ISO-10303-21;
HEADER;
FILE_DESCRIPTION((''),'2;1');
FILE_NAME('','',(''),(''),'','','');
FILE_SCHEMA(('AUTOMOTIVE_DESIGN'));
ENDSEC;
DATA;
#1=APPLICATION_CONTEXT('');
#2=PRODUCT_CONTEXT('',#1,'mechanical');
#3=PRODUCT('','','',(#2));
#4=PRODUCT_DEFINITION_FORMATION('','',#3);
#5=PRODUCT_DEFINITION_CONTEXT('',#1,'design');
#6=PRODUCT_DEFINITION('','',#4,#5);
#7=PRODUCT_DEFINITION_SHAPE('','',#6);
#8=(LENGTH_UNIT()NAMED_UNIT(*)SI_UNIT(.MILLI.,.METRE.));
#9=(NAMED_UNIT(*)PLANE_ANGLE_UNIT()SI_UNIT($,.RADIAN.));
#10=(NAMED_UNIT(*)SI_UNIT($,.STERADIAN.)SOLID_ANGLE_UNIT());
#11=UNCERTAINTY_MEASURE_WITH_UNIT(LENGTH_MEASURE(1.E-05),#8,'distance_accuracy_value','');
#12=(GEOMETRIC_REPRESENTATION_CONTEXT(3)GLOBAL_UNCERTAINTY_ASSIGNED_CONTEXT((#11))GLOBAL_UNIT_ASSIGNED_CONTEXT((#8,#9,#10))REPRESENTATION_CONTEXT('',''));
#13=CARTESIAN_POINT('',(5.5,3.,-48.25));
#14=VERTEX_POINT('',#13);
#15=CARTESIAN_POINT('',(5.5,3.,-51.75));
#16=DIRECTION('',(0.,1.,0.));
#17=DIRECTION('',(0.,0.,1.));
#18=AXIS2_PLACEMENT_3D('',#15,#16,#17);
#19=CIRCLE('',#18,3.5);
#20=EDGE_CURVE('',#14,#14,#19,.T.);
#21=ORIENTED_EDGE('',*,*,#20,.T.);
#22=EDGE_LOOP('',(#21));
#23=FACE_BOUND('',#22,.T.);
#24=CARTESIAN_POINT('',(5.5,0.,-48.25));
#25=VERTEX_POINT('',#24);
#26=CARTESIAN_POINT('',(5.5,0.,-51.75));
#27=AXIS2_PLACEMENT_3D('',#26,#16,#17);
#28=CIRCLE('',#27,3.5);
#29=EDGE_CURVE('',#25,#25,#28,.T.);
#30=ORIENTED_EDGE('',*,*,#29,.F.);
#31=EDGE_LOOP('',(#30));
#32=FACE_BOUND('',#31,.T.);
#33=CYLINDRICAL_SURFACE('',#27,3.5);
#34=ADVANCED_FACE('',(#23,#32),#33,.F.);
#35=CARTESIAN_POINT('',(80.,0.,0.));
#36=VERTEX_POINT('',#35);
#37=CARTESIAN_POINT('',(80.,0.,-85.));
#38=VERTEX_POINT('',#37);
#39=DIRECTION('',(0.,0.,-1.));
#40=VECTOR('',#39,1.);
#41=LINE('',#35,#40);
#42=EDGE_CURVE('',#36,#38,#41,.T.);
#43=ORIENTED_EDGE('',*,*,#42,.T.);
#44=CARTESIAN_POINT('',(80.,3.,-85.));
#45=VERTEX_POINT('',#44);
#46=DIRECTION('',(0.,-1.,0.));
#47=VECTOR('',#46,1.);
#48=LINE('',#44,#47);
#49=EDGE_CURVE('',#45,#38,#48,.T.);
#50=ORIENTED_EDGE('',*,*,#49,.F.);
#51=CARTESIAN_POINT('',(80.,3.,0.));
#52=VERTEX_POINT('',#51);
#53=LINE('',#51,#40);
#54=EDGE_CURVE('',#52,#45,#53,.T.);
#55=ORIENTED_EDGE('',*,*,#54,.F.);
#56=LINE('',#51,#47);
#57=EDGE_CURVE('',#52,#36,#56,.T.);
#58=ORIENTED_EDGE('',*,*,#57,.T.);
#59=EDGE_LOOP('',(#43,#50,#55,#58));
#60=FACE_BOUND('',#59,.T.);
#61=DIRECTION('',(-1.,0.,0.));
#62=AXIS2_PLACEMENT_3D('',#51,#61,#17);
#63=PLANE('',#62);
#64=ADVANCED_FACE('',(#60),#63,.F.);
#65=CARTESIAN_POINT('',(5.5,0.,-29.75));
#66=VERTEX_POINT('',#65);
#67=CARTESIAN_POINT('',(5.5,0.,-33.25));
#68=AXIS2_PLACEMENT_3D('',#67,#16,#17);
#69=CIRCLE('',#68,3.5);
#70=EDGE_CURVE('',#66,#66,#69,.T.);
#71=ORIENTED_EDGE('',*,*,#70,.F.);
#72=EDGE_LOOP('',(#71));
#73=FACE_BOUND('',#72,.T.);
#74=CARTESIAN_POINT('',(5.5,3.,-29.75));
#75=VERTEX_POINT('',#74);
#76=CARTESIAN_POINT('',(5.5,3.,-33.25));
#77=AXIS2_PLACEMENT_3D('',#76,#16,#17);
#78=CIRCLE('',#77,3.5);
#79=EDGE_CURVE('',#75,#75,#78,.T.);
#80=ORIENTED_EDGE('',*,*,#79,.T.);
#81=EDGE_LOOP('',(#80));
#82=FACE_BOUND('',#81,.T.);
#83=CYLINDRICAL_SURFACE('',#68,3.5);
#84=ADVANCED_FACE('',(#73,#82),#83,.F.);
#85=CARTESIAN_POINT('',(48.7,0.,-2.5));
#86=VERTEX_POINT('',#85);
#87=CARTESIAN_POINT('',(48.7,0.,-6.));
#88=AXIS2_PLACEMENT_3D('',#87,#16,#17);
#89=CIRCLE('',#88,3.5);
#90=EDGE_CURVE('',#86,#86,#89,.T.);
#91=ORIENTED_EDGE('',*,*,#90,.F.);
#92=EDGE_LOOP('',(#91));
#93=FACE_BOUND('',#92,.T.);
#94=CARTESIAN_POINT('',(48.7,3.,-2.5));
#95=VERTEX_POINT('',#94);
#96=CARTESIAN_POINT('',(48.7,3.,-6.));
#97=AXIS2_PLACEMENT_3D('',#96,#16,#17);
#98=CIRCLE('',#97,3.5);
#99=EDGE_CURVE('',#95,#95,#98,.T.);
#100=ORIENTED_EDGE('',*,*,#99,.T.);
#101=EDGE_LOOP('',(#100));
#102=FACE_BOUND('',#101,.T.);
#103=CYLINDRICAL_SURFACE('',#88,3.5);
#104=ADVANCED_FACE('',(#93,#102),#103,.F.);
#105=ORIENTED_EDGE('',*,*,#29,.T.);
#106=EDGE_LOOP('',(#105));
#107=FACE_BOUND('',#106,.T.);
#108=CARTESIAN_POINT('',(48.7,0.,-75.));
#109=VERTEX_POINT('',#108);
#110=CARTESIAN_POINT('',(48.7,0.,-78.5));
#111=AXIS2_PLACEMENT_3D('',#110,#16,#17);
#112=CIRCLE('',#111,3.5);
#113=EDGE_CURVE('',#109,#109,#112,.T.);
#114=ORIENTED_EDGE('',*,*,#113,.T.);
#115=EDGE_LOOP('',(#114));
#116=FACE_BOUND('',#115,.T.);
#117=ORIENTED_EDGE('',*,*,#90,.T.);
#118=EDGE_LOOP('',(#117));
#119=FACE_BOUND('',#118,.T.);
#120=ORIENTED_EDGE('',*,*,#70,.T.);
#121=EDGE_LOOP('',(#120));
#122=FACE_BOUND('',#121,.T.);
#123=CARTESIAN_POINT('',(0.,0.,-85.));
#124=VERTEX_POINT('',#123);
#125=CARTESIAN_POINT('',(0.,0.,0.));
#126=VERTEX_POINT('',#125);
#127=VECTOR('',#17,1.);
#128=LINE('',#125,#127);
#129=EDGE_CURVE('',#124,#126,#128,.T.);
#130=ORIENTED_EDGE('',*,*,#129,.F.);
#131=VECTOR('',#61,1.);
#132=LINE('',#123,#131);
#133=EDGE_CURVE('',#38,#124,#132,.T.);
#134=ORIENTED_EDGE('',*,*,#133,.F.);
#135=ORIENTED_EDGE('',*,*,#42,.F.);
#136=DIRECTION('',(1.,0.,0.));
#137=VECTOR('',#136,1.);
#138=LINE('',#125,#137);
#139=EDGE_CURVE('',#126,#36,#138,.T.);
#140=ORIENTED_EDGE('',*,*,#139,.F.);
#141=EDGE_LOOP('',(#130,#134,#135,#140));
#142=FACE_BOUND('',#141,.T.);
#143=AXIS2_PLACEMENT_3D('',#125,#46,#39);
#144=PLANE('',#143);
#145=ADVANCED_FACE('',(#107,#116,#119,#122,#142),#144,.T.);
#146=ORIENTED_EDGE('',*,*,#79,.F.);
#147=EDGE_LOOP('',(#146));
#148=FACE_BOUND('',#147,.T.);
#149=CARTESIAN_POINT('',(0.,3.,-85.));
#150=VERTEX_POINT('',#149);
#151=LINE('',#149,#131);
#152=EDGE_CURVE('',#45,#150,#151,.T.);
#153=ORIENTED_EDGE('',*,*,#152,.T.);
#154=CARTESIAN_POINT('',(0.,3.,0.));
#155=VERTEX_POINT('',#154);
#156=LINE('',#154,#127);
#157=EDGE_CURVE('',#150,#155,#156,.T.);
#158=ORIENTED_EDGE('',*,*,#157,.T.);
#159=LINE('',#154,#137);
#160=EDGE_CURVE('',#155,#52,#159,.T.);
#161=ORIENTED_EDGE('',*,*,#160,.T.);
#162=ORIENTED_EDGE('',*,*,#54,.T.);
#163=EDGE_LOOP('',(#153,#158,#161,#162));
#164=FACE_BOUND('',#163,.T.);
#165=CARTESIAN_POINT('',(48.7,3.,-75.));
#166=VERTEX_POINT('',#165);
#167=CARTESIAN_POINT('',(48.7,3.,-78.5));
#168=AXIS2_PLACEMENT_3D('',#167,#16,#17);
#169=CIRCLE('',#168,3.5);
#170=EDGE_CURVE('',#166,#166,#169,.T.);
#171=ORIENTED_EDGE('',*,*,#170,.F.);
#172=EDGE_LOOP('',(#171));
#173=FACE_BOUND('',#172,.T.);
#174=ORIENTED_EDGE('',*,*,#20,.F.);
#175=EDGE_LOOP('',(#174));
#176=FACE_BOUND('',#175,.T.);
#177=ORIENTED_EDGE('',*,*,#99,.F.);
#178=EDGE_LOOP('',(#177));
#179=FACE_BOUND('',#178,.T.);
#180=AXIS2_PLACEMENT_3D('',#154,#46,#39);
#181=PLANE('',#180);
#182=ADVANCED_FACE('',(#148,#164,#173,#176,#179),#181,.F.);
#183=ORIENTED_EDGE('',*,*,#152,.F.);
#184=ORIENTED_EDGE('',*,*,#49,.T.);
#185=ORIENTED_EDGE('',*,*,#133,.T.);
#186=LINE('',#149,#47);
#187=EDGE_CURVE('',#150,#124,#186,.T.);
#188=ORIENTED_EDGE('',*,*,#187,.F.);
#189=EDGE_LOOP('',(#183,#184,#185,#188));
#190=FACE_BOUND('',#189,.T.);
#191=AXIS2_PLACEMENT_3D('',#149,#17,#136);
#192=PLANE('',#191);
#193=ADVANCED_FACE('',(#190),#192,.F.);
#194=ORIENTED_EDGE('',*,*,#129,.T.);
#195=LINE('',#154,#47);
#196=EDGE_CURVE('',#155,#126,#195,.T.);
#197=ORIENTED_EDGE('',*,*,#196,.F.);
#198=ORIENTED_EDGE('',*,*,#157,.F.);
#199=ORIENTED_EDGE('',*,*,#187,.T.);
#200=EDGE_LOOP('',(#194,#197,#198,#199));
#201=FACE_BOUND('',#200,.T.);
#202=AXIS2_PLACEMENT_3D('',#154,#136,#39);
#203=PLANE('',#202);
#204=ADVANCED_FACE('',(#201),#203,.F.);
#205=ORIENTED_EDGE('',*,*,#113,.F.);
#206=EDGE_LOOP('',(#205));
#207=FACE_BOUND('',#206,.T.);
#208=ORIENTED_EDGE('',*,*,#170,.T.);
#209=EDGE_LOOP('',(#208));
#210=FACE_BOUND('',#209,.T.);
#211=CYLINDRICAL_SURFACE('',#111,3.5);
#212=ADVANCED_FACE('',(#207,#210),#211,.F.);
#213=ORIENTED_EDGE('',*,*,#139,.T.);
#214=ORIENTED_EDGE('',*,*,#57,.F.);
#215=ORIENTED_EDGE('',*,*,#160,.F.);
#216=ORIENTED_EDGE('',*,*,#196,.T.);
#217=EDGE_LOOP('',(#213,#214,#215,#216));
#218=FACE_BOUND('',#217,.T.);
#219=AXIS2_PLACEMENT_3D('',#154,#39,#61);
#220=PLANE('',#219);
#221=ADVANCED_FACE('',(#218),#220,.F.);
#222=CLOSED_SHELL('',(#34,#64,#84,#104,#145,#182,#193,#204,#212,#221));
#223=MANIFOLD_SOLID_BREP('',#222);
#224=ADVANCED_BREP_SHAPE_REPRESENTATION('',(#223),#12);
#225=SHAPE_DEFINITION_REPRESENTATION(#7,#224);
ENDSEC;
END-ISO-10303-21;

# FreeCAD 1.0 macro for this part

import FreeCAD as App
import Part
import Sketcher


def add_polygon(sketch, points):
    """Adds a closed chain of lines whose ends are joined by coincident constraints."""
    first, n = sketch.GeometryCount, len(points)
    for a, b in zip(points, points[1:] + points[:1]):
        sketch.addGeometry(Part.LineSegment(App.Vector(*a, 0), App.Vector(*b, 0)), False)
    for i in range(n):
        sketch.addConstraint(Sketcher.Constraint("Coincident", first + i, 2, first + (i + 1) % n, 1))

doc = App.newDocument("Part")
body = doc.addObject("PartDesign::Body", "Body")

# Sketch on XZ plane
sketch1 = body.newObject("Sketcher::SketchObject", "Sketch")
sketch1.AttachmentSupport = (doc.getObject("XZ_Plane"), [""])
sketch1.MapMode = "FlatFace"
add_polygon(sketch1, [(0, -85), (0, 0), (80, 0), (80, -85)])  # lines 0-3
sketch1.addConstraint([
    Sketcher.Constraint("Vertical", 0),
    Sketcher.Constraint("Horizontal", 1),
    Sketcher.Constraint("Vertical", 2),
    Sketcher.Constraint("Horizontal", 3),
    Sketcher.Constraint("Coincident", 0, 2, -1, 1),
    Sketcher.Constraint("DistanceX", 1, 1, 1, 2, 80.0),
    Sketcher.Constraint("DistanceY", 0, 1, 0, 2, 85.0),
])
pad1 = body.newObject("PartDesign::Pad", "Pad")
pad1.Profile = sketch1
pad1.Length = 3
pad1.Reversed = True

# Sketch on XZ plane
sketch2 = body.newObject("Sketcher::SketchObject", "Sketch001")
sketch2.AttachmentSupport = (doc.getObject("XZ_Plane"), [""])
sketch2.MapMode = "FlatFace"
sketch2.AttachmentOffset = App.Placement(App.Vector(0, 0, -3), App.Rotation())
sketch2.addGeometry([
    Part.Circle(App.Vector(5.5, -33.2, 0), App.Vector(0, 0, 1), 3.5),
    Part.Circle(App.Vector(5.5, -51.8, 0), App.Vector(0, 0, 1), 3.5),
    Part.Circle(App.Vector(48.7, -78.5, 0), App.Vector(0, 0, 1), 3.5),
    Part.Circle(App.Vector(48.7, -6, 0), App.Vector(0, 0, 1), 3.5),
], False)
sketch2.addConstraint([
    Sketcher.Constraint("Equal", 0, 1),
    Sketcher.Constraint("Equal", 1, 2),
    Sketcher.Constraint("Equal", 2, 3),
    Sketcher.Constraint("Vertical", 0, 3, 1, 3),
    Sketcher.Constraint("Vertical", 2, 3, 3, 3),
    Sketcher.Constraint("Diameter", 0, 7.0),
    Sketcher.Constraint("DistanceY", 3, 3, -1, 1, 6.0),
    Sketcher.Constraint("DistanceX", -1, 1, 0, 3, 5.5),
    Sketcher.Constraint("DistanceX", -1, 1, 2, 3, 48.7),
    Sketcher.Constraint("DistanceY", 2, 3, -1, 1, 78.5),
    Sketcher.Constraint("DistanceY", 1, 3, 0, 3, 18.5),
    Sketcher.Constraint("DistanceY", 0, 3, -1, 1, 33.25),
])
pocket1 = body.newObject("PartDesign::Pocket", "Pocket")
pocket1.Profile = sketch2
pocket1.Type = "ThroughAll"
pocket1.Reversed = True

doc.recompute()
